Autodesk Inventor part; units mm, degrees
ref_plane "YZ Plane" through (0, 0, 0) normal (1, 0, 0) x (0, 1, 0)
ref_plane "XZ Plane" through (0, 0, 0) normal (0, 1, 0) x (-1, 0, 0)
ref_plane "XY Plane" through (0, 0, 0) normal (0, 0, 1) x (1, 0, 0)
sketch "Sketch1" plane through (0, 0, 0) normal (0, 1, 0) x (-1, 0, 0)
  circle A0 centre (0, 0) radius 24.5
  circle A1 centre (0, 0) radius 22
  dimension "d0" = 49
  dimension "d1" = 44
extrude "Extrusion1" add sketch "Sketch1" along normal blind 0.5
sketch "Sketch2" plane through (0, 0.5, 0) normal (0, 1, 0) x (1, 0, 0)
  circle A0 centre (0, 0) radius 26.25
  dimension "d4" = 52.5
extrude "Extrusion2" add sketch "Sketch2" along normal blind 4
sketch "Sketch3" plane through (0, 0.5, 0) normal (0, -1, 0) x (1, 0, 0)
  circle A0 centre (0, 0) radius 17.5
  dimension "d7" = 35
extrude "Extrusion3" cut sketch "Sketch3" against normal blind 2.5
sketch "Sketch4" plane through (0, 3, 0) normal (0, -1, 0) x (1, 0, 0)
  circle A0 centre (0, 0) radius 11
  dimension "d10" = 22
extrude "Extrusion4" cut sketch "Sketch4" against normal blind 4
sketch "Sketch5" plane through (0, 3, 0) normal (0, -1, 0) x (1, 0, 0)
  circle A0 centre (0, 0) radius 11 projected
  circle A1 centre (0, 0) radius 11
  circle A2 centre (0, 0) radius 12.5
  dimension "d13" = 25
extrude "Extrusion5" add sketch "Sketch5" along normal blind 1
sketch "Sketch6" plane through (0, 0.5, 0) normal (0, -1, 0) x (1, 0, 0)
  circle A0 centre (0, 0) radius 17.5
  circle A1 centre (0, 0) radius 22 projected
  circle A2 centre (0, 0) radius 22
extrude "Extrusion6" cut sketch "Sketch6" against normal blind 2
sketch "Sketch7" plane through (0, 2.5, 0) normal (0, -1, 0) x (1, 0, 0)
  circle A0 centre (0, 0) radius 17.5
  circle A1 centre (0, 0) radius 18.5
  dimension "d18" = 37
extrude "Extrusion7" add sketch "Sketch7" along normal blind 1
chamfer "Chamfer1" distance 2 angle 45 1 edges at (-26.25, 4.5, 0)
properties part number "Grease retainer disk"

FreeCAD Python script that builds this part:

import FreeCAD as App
import Part
import Sketcher
Q = App.Units.Quantity


def edges_at(feature, points):
    """Names of the edges that pass closest to the given points."""
    edges = feature.Shape.Edges
    near = lambda p: min(range(len(edges)), key=lambda i: edges[i].distToShape(Part.Vertex(*p))[0])
    return sorted({f"Edge{near(p) + 1}" for p in points})

doc = App.newDocument("Part")
body = doc.addObject("PartDesign::Body", "Body")

# Sketch on XZ plane
sketch1 = body.newObject("Sketcher::SketchObject", "Sketch")
sketch1.AttachmentSupport = (doc.getObject("XZ_Plane"), [""])
sketch1.MapMode = "FlatFace"
sketch1.addGeometry([
    Part.Circle(App.Vector(0, 0, 0), App.Vector(0, 0, 1), 24.5),
    Part.Circle(App.Vector(0, 0, 0), App.Vector(0, 0, 1), 22),
], False)
sketch1.addConstraint([
    Sketcher.Constraint("Coincident", 0, 3, -1, 1),
    Sketcher.Constraint("Coincident", 1, 3, -1, 1),
    Sketcher.Constraint("Diameter", 0, Q("49 mm")),
    Sketcher.Constraint("Diameter", 1, Q("44 mm")),
])
pad1 = body.newObject("PartDesign::Pad", "Pad")
pad1.Profile = sketch1
pad1.Length = 0.5
pad1.Reversed = True

# Sketch on XZ plane
sketch2 = body.newObject("Sketcher::SketchObject", "Sketch001")
sketch2.AttachmentSupport = (doc.getObject("XZ_Plane"), [""])
sketch2.MapMode = "FlatFace"
sketch2.AttachmentOffset = App.Placement(App.Vector(0, 0, -0.5), App.Rotation())
sketch2.addGeometry(Part.Circle(App.Vector(0, 0, 0), App.Vector(0, 0, 1), 26.25), False)
sketch2.addConstraint([
    Sketcher.Constraint("Coincident", 0, 3, -1, 1),
    Sketcher.Constraint("Diameter", 0, Q("52.5 mm")),
])
pad2 = body.newObject("PartDesign::Pad", "Pad001")
pad2.Profile = sketch2
pad2.Length = 4
pad2.Reversed = True

# Sketch on XZ plane
sketch3 = body.newObject("Sketcher::SketchObject", "Sketch002")
sketch3.AttachmentSupport = (doc.getObject("XZ_Plane"), [""])
sketch3.MapMode = "FlatFace"
sketch3.AttachmentOffset = App.Placement(App.Vector(0, 0, -0.5), App.Rotation())
sketch3.addGeometry(Part.Circle(App.Vector(0, 0, 0), App.Vector(0, 0, 1), 17.5), False)
sketch3.addConstraint([
    Sketcher.Constraint("Coincident", 0, 3, -1, 1),
    Sketcher.Constraint("Diameter", 0, Q("35 mm")),
])
pocket1 = body.newObject("PartDesign::Pocket", "Pocket")
pocket1.Profile = sketch3
pocket1.Length = 2.5

# Sketch on XZ plane
sketch4 = body.newObject("Sketcher::SketchObject", "Sketch003")
sketch4.AttachmentSupport = (doc.getObject("XZ_Plane"), [""])
sketch4.MapMode = "FlatFace"
sketch4.AttachmentOffset = App.Placement(App.Vector(0, 0, -3), App.Rotation())
sketch4.addGeometry(Part.Circle(App.Vector(0, 0, 0), App.Vector(0, 0, 1), 11), False)
sketch4.addConstraint([
    Sketcher.Constraint("Coincident", 0, 3, -1, 1),
    Sketcher.Constraint("Diameter", 0, Q("22 mm")),
])
pocket2 = body.newObject("PartDesign::Pocket", "Pocket001")
pocket2.Profile = sketch4
pocket2.Length = 4

# Sketch on XZ plane
sketch5 = body.newObject("Sketcher::SketchObject", "Sketch004")
sketch5.AttachmentSupport = (doc.getObject("XZ_Plane"), [""])
sketch5.MapMode = "FlatFace"
sketch5.AttachmentOffset = App.Placement(App.Vector(0, 0, -3), App.Rotation())
sketch5.addGeometry([
    Part.Circle(App.Vector(0, 0, 0), App.Vector(0, 0, 1), 12.5),
    Part.Circle(App.Vector(0, 0, 0), App.Vector(0, 0, 1), 11),
], False)
sketch5.addConstraint([
    Sketcher.Constraint("Coincident", 0, 3, -1, 1),
    Sketcher.Constraint("Coincident", 1, 3, -1, 1),
    Sketcher.Constraint("Diameter", 0, Q("25 mm")),
    Sketcher.Constraint("Diameter", 1, Q("22 mm")),
])
pad3 = body.newObject("PartDesign::Pad", "Pad002")
pad3.Profile = sketch5
pad3.Length = 1

# Sketch on XZ plane
sketch6 = body.newObject("Sketcher::SketchObject", "Sketch005")
sketch6.AttachmentSupport = (doc.getObject("XZ_Plane"), [""])
sketch6.MapMode = "FlatFace"
sketch6.AttachmentOffset = App.Placement(App.Vector(0, 0, -0.5), App.Rotation())
sketch6.addGeometry([
    Part.Circle(App.Vector(0, 0, 0), App.Vector(0, 0, 1), 22),
    Part.Circle(App.Vector(0, 0, 0), App.Vector(0, 0, 1), 17.5),
], False)
sketch6.addConstraint([
    Sketcher.Constraint("Coincident", 0, 3, -1, 1),
    Sketcher.Constraint("Coincident", 1, 3, -1, 1),
    Sketcher.Constraint("Diameter", 0, Q("44 mm")),
    Sketcher.Constraint("Diameter", 1, Q("35 mm")),
])
pocket3 = body.newObject("PartDesign::Pocket", "Pocket002")
pocket3.Profile = sketch6
pocket3.Length = 2

# Sketch on XZ plane
sketch7 = body.newObject("Sketcher::SketchObject", "Sketch006")
sketch7.AttachmentSupport = (doc.getObject("XZ_Plane"), [""])
sketch7.MapMode = "FlatFace"
sketch7.AttachmentOffset = App.Placement(App.Vector(0, 0, -2.5), App.Rotation())
sketch7.addGeometry([
    Part.Circle(App.Vector(0, 0, 0), App.Vector(0, 0, 1), 18.5),
    Part.Circle(App.Vector(0, 0, 0), App.Vector(0, 0, 1), 17.5),
], False)
sketch7.addConstraint([
    Sketcher.Constraint("Coincident", 0, 3, -1, 1),
    Sketcher.Constraint("Coincident", 1, 3, -1, 1),
    Sketcher.Constraint("Diameter", 0, Q("37 mm")),
    Sketcher.Constraint("Diameter", 1, Q("35 mm")),
])
pad4 = body.newObject("PartDesign::Pad", "Pad003")
pad4.Profile = sketch7
pad4.Length = 1
doc.recompute()

chamfer = body.newObject("PartDesign::Chamfer", "Chamfer")
chamfer.Base = (pad4, edges_at(pad4, [(-26.25, 4.5, 0)]))
chamfer.Size = 2

doc.recompute()
